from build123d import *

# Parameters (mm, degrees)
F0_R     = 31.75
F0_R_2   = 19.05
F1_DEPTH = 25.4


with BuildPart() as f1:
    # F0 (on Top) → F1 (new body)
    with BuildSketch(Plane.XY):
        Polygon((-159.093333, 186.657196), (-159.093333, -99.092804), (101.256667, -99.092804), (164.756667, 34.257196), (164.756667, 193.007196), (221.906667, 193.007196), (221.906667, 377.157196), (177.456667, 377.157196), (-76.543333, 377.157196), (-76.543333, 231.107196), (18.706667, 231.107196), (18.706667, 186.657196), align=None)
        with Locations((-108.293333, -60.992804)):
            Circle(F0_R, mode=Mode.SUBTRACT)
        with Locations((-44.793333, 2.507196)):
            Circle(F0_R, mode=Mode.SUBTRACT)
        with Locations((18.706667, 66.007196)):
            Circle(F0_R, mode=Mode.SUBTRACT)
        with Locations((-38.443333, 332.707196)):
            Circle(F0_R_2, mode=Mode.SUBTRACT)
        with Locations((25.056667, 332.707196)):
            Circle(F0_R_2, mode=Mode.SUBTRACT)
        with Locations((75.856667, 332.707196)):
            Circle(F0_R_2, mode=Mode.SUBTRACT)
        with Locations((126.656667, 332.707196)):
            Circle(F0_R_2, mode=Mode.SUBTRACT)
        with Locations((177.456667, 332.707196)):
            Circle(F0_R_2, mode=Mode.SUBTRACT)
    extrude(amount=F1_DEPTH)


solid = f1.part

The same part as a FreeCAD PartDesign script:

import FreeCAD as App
import Part
import Sketcher
Q = App.Units.Quantity

doc = App.newDocument("Part")
body = doc.addObject("PartDesign::Body", "Body")

# Sketch on XY plane
sketch1 = body.newObject("Sketcher::SketchObject", "Sketch")
sketch1.AttachmentSupport = (doc.getObject("XY_Plane"), [""])
sketch1.MapMode = "FlatFace"
sketch1.addGeometry(Part.LineSegment(App.Vector(-159.093333, 186.657196, 0), App.Vector(-159.093333, -99.092804, 0)), False)
sketch1.addGeometry(Part.LineSegment(App.Vector(-159.093333, -99.092804, 0), App.Vector(101.256667, -99.092804, 0)), False)
sketch1.addGeometry(Part.LineSegment(App.Vector(101.256667, -99.092804, 0), App.Vector(164.756667, 34.257196, 0)), False)
sketch1.addGeometry(Part.LineSegment(App.Vector(164.756667, 34.257196, 0), App.Vector(164.756667, 193.007196, 0)), False)
sketch1.addGeometry(Part.LineSegment(App.Vector(164.756667, 193.007196, 0), App.Vector(221.906667, 193.007196, 0)), False)
sketch1.addGeometry(Part.LineSegment(App.Vector(221.906667, 193.007196, 0), App.Vector(221.906667, 377.157196, 0)), False)
sketch1.addGeometry(Part.LineSegment(App.Vector(221.906667, 377.157196, 0), App.Vector(-76.543333, 377.157196, 0)), False)
sketch1.addGeometry(Part.LineSegment(App.Vector(-76.543333, 377.157196, 0), App.Vector(-76.543333, 231.107196, 0)), False)
sketch1.addGeometry(Part.LineSegment(App.Vector(-76.543333, 231.107196, 0), App.Vector(18.706667, 231.107196, 0)), False)
sketch1.addGeometry(Part.LineSegment(App.Vector(18.706667, 231.107196, 0), App.Vector(18.706667, 186.657196, 0)), False)
sketch1.addGeometry(Part.LineSegment(App.Vector(18.706667, 186.657196, 0), App.Vector(-159.093333, 186.657196, 0)), False)
sketch1.addGeometry(Part.Circle(App.Vector(-108.293333, -60.992804, 0), App.Vector(0, 0, 1), 31.75), False)
sketch1.addGeometry(Part.Circle(App.Vector(-44.793333, 2.507196, 0), App.Vector(0, 0, 1), 31.75), False)
sketch1.addGeometry(Part.Circle(App.Vector(18.706667, 66.007196, 0), App.Vector(0, 0, 1), 31.75), False)
sketch1.addGeometry(Part.Circle(App.Vector(-38.443333, 332.707196, 0), App.Vector(0, 0, 1), 19.05), False)
sketch1.addGeometry(Part.Circle(App.Vector(25.056667, 332.707196, 0), App.Vector(0, 0, 1), 19.05), False)
sketch1.addGeometry(Part.Circle(App.Vector(75.856667, 332.707196, 0), App.Vector(0, 0, 1), 19.05), False)
sketch1.addGeometry(Part.Circle(App.Vector(126.656667, 332.707196, 0), App.Vector(0, 0, 1), 19.05), False)
sketch1.addGeometry(Part.Circle(App.Vector(177.456667, 332.707196, 0), App.Vector(0, 0, 1), 19.05), False)
sketch1.addConstraint(Sketcher.Constraint("Coincident", 0, 2, 1, 1))
sketch1.addConstraint(Sketcher.Constraint("Coincident", 1, 2, 2, 1))
sketch1.addConstraint(Sketcher.Constraint("Coincident", 2, 2, 3, 1))
sketch1.addConstraint(Sketcher.Constraint("Coincident", 3, 2, 4, 1))
sketch1.addConstraint(Sketcher.Constraint("Coincident", 4, 2, 5, 1))
sketch1.addConstraint(Sketcher.Constraint("Coincident", 5, 2, 6, 1))
sketch1.addConstraint(Sketcher.Constraint("Coincident", 6, 2, 7, 1))
sketch1.addConstraint(Sketcher.Constraint("Coincident", 7, 2, 8, 1))
sketch1.addConstraint(Sketcher.Constraint("Coincident", 8, 2, 9, 1))
sketch1.addConstraint(Sketcher.Constraint("Coincident", 9, 2, 10, 1))
sketch1.addConstraint(Sketcher.Constraint("Coincident", 10, 2, 0, 1))
sketch1.addConstraint(Sketcher.Constraint("Vertical", 0))
sketch1.addConstraint(Sketcher.Constraint("Horizontal", 1))
sketch1.addConstraint(Sketcher.Constraint("Vertical", 3))
sketch1.addConstraint(Sketcher.Constraint("Horizontal", 4))
sketch1.addConstraint(Sketcher.Constraint("Vertical", 5))
sketch1.addConstraint(Sketcher.Constraint("Horizontal", 6))
sketch1.addConstraint(Sketcher.Constraint("Vertical", 7))
sketch1.addConstraint(Sketcher.Constraint("Horizontal", 8))
sketch1.addConstraint(Sketcher.Constraint("Vertical", 9))
sketch1.addConstraint(Sketcher.Constraint("Horizontal", 10))
sketch1.addConstraint(Sketcher.Constraint("Equal", 11, 12))
sketch1.addConstraint(Sketcher.Constraint("Equal", 12, 13))
sketch1.addConstraint(Sketcher.Constraint("Equal", 14, 15))
sketch1.addConstraint(Sketcher.Constraint("Equal", 15, 16))
sketch1.addConstraint(Sketcher.Constraint("Equal", 16, 17))
sketch1.addConstraint(Sketcher.Constraint("Equal", 17, 18))
sketch1.addConstraint(Sketcher.Constraint("Horizontal", 14, 3, 15, 3))
sketch1.addConstraint(Sketcher.Constraint("Horizontal", 15, 3, 16, 3))
sketch1.addConstraint(Sketcher.Constraint("Horizontal", 16, 3, 17, 3))
sketch1.addConstraint(Sketcher.Constraint("Horizontal", 17, 3, 18, 3))
sketch1.addConstraint(Sketcher.Constraint("Vertical", 13, 3, 8, 2))
sketch1.addConstraint(Sketcher.Constraint("Diameter", 11, Q("2.5 in")))
sketch1.addConstraint(Sketcher.Constraint("Diameter", 14, Q("1.5 in")))
sketch1.addConstraint(Sketcher.Constraint("DistanceX", 10, 2, 10, 1, Q("7 in")))
sketch1.addConstraint(Sketcher.Constraint("DistanceX", 11, 3, 13, 3, Q("5 in")))
sketch1.addConstraint(Sketcher.Constraint("DistanceY", 11, 3, 13, 3, Q("5 in")))
sketch1.addConstraint(Sketcher.Constraint("DistanceY", 12, 3, 14, 3, Q("13 in")))
sketch1.addConstraint(Sketcher.Constraint("DistanceX", 15, 3, 16, 3, Q("2 in")))
sketch1.addConstraint(Sketcher.Constraint("DistanceX", 16, 3, 17, 3, Q("2 in")))
sketch1.addConstraint(Sketcher.Constraint("DistanceX", 17, 3, 18, 3, Q("2 in")))
sketch1.addConstraint(Sketcher.Constraint("DistanceY", 0, 2, 12, 3, Q("4 in")))
sketch1.addConstraint(Sketcher.Constraint("DistanceX", 16, 3, 1, 2, Q("1 in")))
sketch1.addConstraint(Sketcher.Constraint("DistanceY", 13, 3, 3, 2, Q("5 in")))
sketch1.addConstraint(Sketcher.Constraint("DistanceX", 6, 2, 15, 3, Q("4 in")))
sketch1.addConstraint(Sketcher.Constraint("DistanceY", 7, 2, 14, 3, Q("4 in")))
sketch1.addConstraint(Sketcher.Constraint("DistanceX", 1, 1, 1, 2, Q("10.25 in")))
sketch1.addConstraint(Sketcher.Constraint("DistanceX", 4, 1, 4, 2, Q("2.25 in")))
sketch1.addConstraint(Sketcher.Constraint("DistanceX", 6, 2, 6, 1, Q("11.75 in")))
sketch1.addConstraint(Sketcher.Constraint("DistanceY", 0, 2, 0, 1, Q("11.25 in")))
sketch1.addConstraint(Sketcher.Constraint("DistanceY", 3, 1, 3, 2, Q("6.25 in")))
sketch1.addConstraint(Sketcher.Constraint("DistanceY", 5, 1, 5, 2, Q("7.25 in")))
sketch1.addConstraint(Sketcher.Constraint("DistanceY", 7, 2, 7, 1, Q("5.75 in")))
sketch1.addConstraint(Sketcher.Constraint("DistanceX", 11, 3, 12, 3, Q("2.5 in")))
sketch1.addConstraint(Sketcher.Constraint("DistanceX", 14, 3, 15, 3, Q("2.5 in")))
sketch1.addConstraint(Sketcher.Constraint("DistanceX", 11, 3, -1, 1, 108.293333))
sketch1.addConstraint(Sketcher.Constraint("DistanceY", 11, 3, -1, 1, 60.992804))
pad1 = body.newObject("PartDesign::Pad", "Pad")
pad1.Profile = sketch1
pad1.Length = Q("1 in")

doc.recompute()
